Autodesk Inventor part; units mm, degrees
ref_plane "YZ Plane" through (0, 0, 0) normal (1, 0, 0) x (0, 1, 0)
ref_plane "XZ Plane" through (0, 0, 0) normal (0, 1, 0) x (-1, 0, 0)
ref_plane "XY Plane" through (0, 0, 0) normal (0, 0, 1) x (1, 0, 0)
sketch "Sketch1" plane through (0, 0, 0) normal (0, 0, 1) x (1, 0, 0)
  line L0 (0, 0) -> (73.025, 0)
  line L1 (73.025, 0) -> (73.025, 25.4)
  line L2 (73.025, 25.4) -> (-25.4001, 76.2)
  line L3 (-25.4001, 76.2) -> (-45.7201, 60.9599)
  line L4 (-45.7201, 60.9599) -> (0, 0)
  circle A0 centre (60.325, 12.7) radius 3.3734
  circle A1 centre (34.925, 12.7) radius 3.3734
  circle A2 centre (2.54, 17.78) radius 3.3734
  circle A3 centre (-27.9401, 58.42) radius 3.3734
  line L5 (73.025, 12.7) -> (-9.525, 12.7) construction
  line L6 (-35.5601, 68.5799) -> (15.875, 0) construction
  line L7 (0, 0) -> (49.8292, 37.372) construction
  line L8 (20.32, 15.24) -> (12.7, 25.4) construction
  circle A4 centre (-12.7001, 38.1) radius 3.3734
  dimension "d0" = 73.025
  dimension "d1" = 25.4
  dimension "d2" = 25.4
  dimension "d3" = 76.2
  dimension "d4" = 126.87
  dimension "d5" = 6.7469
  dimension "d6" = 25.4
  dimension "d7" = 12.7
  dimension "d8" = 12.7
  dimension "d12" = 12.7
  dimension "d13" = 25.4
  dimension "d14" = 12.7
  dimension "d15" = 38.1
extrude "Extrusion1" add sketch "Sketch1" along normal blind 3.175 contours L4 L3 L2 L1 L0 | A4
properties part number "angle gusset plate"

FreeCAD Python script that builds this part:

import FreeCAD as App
import Part
import Sketcher
Q = App.Units.Quantity

doc = App.newDocument("Part")
params = doc.addObject("Spreadsheet::Sheet", "Params")
for row, (alias, value) in enumerate([
    ("sketch1_height", "1 in"),
    ("sketch1_length", "3 in"),
    ("sketch1_length2", "1 in"),
    ("sketch1_diameter", "0.265622 in"),
    ("sketch1_width", "2.875 in"),
    ("pad1_length", "0.125 in"),
], start=1):
    params.set(f"A{row}", alias)
    params.set(f"B{row}", "=" + value)
    params.setAlias(f"B{row}", alias)

body = doc.addObject("PartDesign::Body", "Body")

# Sketch on XY plane
sketch1 = body.newObject("Sketcher::SketchObject", "Sketch")
sketch1.AttachmentSupport = (doc.getObject("XY_Plane"), [""])
sketch1.MapMode = "FlatFace"
sketch1.addGeometry([
    Part.LineSegment(App.Vector(-45.7, 61, 0), App.Vector(0, 0, 0)),  # 0
    Part.LineSegment(App.Vector(0, 0, 0), App.Vector(73, 0, 0)),  # 1
    Part.LineSegment(App.Vector(73, 0, 0), App.Vector(73, 25.4, 0)),  # 2
    Part.LineSegment(App.Vector(73, 25.4, 0), App.Vector(-25.4, 76.2, 0)),  # 3
    Part.LineSegment(App.Vector(-25.4, 76.2, 0), App.Vector(-45.7, 61, 0)),  # 4
    Part.Circle(App.Vector(2.5, 17.8, 0), App.Vector(0, 0, 1), 3.4),  # 5
    Part.Circle(App.Vector(34.9, 12.7, 0), App.Vector(0, 0, 1), 3.4),  # 6
    Part.Circle(App.Vector(60.3, 12.7, 0), App.Vector(0, 0, 1), 3.4),  # 7
    Part.Circle(App.Vector(-27.9, 58.4, 0), App.Vector(0, 0, 1), 3.4),  # 8
], False)
sketch1.addConstraint([
    Sketcher.Constraint("Coincident", 0, 2, 1, 1),
    Sketcher.Constraint("Coincident", 1, 2, 2, 1),
    Sketcher.Constraint("Coincident", 2, 2, 3, 1),
    Sketcher.Constraint("Coincident", 3, 2, 4, 1),
    Sketcher.Constraint("Coincident", 4, 2, 0, 1),
    Sketcher.Constraint("Horizontal", 1),
    Sketcher.Constraint("Vertical", 2),
    Sketcher.Constraint("Coincident", 0, 2, -1, 1),
    Sketcher.Constraint("Equal", 5, 6),
    Sketcher.Constraint("Equal", 6, 7),
    Sketcher.Constraint("Equal", 7, 8),
    Sketcher.Constraint("Perpendicular", 0, 4),
    Sketcher.Constraint("Horizontal", 6, 3, 7, 3),
    Sketcher.Constraint("DistanceY", 2, 1, 2, 2, Q("1 in")),
    Sketcher.Constraint("Distance", 0, Q("3 in")),
    Sketcher.Constraint("Distance", 4, Q("1 in")),
    Sketcher.Constraint("Diameter", 5, Q("0.265622 in")),
    Sketcher.Constraint("DistanceX", 3, 2, -1, 1, Q("1 in")),
    Sketcher.Constraint("DistanceX", 6, 3, 7, 3, Q("1 in")),
    Sketcher.Constraint("DistanceY", -1, 1, 6, 3, Q("0.5 in")),
    Sketcher.Constraint("DistanceX", 7, 3, 1, 2, Q("0.5 in")),
    Sketcher.Constraint("DistanceX", 1, 1, 1, 2, Q("2.875 in")),
    Sketcher.Constraint("DistanceX", -1, 1, 5, 3, Q("0.1 in")),
    Sketcher.Constraint("DistanceY", -1, 1, 5, 3, Q("0.7 in")),
    Sketcher.Constraint("DistanceX", 8, 3, -1, 1, Q("1.1 in")),
    Sketcher.Constraint("DistanceY", -1, 1, 8, 3, Q("2.3 in")),
])
sketch1.setExpression("Constraints[13]", "Params.sketch1_height")
sketch1.setExpression("Constraints[14]", "Params.sketch1_length")
sketch1.setExpression("Constraints[15]", "Params.sketch1_length2")
sketch1.setExpression("Constraints[16]", "Params.sketch1_diameter")
sketch1.setExpression("Constraints[21]", "Params.sketch1_width")
pad1 = body.newObject("PartDesign::Pad", "Pad")
pad1.Profile = sketch1
pad1.setExpression("Length", "Params.pad1_length")

doc.recompute()
